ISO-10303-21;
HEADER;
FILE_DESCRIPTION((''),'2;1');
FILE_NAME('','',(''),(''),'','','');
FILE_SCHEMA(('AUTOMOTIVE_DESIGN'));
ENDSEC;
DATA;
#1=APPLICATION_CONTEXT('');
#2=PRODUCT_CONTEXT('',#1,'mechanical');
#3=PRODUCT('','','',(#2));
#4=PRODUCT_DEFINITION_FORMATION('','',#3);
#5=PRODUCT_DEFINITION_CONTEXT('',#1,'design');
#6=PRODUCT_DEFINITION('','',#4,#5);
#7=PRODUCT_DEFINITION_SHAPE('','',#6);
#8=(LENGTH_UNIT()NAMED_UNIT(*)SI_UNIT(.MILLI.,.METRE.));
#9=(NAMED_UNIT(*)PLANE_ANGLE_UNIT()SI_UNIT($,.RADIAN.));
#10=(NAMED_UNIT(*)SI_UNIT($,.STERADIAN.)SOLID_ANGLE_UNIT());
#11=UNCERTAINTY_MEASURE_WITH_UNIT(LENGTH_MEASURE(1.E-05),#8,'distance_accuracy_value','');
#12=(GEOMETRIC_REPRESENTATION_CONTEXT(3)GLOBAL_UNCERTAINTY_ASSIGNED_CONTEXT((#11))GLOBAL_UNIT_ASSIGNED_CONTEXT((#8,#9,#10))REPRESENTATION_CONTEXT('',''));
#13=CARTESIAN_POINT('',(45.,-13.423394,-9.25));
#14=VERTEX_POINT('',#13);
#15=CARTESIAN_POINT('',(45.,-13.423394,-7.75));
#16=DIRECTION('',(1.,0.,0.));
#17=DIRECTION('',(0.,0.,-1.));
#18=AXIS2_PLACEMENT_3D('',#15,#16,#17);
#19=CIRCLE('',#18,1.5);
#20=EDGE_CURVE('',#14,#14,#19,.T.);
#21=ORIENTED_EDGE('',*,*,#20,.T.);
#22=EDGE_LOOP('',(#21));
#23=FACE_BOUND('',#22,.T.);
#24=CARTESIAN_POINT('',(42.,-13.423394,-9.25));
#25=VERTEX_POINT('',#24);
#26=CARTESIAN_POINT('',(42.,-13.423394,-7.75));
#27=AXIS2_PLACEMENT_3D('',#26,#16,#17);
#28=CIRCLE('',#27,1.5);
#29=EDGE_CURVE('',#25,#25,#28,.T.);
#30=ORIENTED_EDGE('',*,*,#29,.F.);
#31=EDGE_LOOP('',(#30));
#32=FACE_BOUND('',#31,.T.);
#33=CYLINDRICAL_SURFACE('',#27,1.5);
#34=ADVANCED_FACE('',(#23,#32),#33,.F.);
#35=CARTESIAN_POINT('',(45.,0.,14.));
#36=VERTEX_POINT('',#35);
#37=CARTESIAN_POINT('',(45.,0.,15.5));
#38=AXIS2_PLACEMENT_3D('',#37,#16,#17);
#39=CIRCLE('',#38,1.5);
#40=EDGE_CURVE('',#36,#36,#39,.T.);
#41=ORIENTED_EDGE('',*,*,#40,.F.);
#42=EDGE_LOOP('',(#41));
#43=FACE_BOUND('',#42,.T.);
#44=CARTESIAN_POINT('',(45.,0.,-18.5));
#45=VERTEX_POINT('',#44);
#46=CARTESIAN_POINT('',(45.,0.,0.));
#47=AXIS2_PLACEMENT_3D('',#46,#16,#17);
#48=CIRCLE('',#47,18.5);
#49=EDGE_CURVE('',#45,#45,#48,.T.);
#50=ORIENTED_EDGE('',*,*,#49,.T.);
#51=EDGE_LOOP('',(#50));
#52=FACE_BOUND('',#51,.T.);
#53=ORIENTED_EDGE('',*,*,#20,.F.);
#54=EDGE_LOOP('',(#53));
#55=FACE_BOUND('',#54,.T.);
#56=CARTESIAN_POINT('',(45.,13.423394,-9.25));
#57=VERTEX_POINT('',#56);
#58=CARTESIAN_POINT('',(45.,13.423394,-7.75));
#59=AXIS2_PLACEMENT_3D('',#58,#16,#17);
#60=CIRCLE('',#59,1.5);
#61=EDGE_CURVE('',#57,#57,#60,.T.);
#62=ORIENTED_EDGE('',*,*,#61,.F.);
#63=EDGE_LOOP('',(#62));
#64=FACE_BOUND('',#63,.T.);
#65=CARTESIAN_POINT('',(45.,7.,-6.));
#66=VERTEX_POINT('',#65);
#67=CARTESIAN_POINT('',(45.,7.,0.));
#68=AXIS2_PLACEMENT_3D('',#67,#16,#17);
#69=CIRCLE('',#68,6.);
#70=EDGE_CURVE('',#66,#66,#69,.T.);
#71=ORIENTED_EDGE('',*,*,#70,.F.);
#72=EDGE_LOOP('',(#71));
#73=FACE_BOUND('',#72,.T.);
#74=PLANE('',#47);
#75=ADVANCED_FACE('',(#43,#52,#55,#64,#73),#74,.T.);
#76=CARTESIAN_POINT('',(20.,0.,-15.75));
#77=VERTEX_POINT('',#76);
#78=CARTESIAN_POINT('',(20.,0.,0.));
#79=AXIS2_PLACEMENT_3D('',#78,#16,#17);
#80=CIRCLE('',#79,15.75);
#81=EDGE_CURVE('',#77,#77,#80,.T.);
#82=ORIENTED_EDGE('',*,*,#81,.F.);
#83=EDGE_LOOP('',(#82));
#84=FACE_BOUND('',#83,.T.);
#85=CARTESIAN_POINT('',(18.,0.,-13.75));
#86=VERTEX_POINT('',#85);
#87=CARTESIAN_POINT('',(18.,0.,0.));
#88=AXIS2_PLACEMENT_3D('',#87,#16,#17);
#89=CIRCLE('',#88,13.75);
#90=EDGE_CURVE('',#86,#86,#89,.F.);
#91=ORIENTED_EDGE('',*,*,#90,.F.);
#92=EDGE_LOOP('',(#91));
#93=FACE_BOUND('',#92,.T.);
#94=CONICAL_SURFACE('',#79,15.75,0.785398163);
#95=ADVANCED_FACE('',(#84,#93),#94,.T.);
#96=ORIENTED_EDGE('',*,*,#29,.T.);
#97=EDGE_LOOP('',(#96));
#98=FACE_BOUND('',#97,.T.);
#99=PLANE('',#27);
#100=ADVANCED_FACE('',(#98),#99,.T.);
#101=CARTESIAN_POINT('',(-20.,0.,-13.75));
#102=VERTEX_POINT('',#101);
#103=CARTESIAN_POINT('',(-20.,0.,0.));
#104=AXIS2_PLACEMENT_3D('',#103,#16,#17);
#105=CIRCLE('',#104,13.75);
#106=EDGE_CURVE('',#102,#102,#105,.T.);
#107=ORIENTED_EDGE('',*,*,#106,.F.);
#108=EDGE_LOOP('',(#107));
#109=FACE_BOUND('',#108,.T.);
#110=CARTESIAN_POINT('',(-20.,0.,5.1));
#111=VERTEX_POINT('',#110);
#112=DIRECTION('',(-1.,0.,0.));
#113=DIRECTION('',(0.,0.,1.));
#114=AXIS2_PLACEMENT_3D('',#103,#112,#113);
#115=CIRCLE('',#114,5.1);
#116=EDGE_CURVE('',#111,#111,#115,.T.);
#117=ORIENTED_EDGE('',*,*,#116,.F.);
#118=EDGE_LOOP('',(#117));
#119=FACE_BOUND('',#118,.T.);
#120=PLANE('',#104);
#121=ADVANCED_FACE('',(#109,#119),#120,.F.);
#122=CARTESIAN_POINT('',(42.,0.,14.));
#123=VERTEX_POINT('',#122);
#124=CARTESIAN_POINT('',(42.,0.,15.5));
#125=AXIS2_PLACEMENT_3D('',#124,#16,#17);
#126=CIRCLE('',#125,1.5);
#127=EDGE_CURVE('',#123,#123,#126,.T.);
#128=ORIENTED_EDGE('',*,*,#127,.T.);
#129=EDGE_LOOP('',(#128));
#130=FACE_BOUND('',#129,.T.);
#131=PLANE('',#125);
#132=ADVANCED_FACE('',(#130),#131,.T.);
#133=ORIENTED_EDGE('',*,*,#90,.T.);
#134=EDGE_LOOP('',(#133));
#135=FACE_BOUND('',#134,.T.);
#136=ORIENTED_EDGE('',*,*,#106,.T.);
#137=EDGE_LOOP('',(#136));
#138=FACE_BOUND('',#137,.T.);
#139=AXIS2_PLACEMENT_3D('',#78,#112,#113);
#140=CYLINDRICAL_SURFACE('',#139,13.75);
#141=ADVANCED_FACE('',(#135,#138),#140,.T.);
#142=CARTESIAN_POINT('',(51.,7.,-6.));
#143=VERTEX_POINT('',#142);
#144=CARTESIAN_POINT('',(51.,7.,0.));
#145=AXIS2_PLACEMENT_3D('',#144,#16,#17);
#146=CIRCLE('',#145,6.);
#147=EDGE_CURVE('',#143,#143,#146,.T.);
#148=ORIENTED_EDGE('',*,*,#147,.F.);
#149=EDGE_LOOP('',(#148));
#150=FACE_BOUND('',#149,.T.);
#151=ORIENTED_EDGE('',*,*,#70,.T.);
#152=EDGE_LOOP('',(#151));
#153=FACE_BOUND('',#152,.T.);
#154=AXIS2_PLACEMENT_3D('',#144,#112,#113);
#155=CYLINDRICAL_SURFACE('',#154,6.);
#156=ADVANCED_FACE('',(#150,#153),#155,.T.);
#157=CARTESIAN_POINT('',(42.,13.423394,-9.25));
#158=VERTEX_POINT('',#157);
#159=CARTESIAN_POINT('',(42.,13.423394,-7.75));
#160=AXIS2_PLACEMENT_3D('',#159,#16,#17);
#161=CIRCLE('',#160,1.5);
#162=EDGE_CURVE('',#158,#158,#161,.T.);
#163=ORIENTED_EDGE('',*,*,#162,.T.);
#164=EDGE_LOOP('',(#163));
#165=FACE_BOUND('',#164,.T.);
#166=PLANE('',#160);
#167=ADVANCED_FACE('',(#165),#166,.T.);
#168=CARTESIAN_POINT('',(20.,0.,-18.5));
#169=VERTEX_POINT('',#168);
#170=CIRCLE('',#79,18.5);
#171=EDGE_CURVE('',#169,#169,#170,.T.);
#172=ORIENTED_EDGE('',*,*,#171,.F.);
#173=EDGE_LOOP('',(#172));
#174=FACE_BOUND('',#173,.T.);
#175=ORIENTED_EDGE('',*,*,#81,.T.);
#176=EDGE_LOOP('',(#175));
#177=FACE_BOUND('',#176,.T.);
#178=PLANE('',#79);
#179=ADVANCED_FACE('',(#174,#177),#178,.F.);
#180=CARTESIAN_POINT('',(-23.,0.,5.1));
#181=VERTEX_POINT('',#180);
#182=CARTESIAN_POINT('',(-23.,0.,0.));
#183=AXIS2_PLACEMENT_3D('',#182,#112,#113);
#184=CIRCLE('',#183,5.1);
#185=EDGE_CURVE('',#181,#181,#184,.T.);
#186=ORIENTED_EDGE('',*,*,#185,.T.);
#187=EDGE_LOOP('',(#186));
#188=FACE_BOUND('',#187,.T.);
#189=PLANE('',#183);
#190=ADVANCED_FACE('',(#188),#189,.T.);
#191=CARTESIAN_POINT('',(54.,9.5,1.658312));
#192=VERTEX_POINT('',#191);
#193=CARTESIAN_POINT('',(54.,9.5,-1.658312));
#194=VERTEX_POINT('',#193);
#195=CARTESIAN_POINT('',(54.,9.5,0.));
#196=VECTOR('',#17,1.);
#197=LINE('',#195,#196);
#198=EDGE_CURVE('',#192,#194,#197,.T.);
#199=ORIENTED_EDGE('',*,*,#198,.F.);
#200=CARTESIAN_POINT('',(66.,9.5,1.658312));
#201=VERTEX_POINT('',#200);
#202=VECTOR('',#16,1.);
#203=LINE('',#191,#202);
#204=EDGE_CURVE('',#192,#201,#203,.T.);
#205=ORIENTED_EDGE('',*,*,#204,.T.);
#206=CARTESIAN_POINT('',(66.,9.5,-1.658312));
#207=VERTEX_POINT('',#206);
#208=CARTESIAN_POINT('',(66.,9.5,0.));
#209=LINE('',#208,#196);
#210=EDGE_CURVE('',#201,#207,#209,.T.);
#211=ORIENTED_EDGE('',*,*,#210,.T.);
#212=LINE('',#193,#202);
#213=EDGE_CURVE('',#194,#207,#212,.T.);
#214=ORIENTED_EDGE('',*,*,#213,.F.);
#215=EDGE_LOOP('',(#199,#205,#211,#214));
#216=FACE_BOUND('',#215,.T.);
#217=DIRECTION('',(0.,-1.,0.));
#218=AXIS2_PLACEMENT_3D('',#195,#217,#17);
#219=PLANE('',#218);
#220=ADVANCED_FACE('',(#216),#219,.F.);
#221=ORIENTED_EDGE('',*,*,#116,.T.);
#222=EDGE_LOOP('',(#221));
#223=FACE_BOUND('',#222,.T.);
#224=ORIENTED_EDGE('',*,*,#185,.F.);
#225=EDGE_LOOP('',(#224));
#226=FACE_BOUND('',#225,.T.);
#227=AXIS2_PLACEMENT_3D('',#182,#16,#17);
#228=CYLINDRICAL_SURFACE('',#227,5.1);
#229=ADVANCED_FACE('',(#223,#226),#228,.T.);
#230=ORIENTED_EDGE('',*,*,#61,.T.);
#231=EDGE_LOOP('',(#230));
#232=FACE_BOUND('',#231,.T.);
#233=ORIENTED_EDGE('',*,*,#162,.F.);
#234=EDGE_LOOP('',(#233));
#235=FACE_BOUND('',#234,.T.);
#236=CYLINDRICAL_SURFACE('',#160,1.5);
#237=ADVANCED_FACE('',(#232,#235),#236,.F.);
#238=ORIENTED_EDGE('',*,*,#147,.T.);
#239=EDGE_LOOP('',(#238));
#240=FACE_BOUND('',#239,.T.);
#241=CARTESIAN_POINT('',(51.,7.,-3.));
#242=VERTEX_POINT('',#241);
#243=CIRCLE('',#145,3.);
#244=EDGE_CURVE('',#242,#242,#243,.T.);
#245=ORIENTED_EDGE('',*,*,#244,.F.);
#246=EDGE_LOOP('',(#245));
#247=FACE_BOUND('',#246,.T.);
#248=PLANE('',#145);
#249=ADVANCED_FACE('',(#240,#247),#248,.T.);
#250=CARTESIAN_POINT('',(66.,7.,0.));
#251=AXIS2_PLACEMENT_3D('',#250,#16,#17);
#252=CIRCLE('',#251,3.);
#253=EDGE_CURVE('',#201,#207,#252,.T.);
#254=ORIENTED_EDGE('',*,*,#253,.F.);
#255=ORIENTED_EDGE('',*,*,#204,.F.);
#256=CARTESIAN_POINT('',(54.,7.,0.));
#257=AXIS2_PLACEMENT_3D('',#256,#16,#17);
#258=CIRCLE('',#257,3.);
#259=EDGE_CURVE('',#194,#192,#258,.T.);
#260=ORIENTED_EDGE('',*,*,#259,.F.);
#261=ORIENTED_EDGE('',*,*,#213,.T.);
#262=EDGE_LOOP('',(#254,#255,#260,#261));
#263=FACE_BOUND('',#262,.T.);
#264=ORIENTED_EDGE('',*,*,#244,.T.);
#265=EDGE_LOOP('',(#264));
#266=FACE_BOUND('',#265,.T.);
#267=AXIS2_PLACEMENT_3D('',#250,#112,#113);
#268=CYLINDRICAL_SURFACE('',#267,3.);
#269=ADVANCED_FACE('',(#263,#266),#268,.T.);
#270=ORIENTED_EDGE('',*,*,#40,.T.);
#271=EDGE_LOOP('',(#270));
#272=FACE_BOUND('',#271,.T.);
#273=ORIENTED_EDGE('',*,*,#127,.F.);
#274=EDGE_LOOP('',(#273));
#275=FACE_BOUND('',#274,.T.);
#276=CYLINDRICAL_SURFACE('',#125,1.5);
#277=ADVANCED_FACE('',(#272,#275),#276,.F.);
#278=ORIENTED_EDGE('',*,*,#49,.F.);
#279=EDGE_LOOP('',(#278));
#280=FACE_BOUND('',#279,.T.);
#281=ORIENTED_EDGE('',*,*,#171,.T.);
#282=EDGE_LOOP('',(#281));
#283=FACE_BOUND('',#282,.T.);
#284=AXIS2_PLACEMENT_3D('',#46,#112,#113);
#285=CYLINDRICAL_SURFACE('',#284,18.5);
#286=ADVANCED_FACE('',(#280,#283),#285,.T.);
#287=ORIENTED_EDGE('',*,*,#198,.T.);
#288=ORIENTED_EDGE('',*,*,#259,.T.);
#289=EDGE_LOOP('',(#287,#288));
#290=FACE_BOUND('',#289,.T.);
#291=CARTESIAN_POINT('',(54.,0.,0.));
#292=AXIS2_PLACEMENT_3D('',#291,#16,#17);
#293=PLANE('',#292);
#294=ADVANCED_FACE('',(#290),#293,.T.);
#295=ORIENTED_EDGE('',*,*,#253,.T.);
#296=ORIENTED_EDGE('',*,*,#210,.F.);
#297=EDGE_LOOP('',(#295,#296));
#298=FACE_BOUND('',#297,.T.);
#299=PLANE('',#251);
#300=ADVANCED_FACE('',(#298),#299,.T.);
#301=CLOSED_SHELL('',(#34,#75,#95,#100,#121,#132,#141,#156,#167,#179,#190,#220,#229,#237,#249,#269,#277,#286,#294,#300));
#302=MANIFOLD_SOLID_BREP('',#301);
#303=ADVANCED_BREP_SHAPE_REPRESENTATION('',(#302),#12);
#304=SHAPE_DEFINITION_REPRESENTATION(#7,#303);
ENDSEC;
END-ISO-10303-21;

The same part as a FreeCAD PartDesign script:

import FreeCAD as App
import Part
import Sketcher
from FreeCAD import Vector


def edges_at(feature, points):
    """Names of the edges that pass closest to the given points."""
    edges = feature.Shape.Edges
    near = lambda p: min(range(len(edges)), key=lambda i: edges[i].distToShape(Part.Vertex(*p))[0])
    return sorted({f"Edge{near(p) + 1}" for p in points})


def add_polygon(sketch, points):
    """Adds a closed chain of lines whose ends are joined by coincident constraints."""
    first, n = sketch.GeometryCount, len(points)
    for a, b in zip(points, points[1:] + points[:1]):
        sketch.addGeometry(Part.LineSegment(App.Vector(*a, 0), App.Vector(*b, 0)), False)
    for i in range(n):
        sketch.addConstraint(Sketcher.Constraint("Coincident", first + i, 2, first + (i + 1) % n, 1))

doc = App.newDocument("Part")
body = doc.addObject("PartDesign::Body", "Body")

sketch1 = body.newObject("Sketcher::SketchObject", "Sketch")
sketch1.AttachmentSupport = (doc.getObject("YZ_Plane"), [""])
sketch1.MapMode = "FlatFace"
sketch1.addGeometry(Part.Circle(Vector(0, 0, 0), Vector(0, 0, 1), 13.75), False)
sketch1.addConstraint([
    Sketcher.Constraint("Coincident", 0, 3, -1, 1),
    Sketcher.Constraint("Diameter", 0, 27.5),
])
pad1 = body.newObject("PartDesign::Pad", "Pad")
pad1.Profile = sketch1
pad1.Length = 40
pad1.Midplane = True

sketch2 = body.newObject("Sketcher::SketchObject", "Sketch001")
sketch2.AttachmentSupport = (doc.getObject("YZ_Plane"), [""])
sketch2.MapMode = "FlatFace"
sketch2.AttachmentOffset = App.Placement(Vector(0, 0, -20), App.Rotation())
sketch2.addGeometry(Part.Circle(Vector(0, 0, 0), Vector(0, 0, 1), 5.1), False)
sketch2.addConstraint([
    Sketcher.Constraint("Coincident", 0, 3, -1, 1),
    Sketcher.Constraint("Diameter", 0, 10.2),
])
pad2 = body.newObject("PartDesign::Pad", "Pad001")
pad2.Profile = sketch2
pad2.Length = 3
pad2.Reversed = True

sketch3 = body.newObject("Sketcher::SketchObject", "Sketch002")
sketch3.AttachmentSupport = (doc.getObject("YZ_Plane"), [""])
sketch3.MapMode = "FlatFace"
sketch3.AttachmentOffset = App.Placement(Vector(0, 0, 20), App.Rotation())
sketch3.addGeometry(Part.Circle(Vector(0, 0, 0), Vector(0, 0, 1), 18.5), False)
sketch3.addConstraint([
    Sketcher.Constraint("Coincident", 0, 3, -1, 1),
    Sketcher.Constraint("Diameter", 0, 37.0),
])
pad3 = body.newObject("PartDesign::Pad", "Pad002")
pad3.Profile = sketch3
pad3.Length = 25

sketch4 = body.newObject("Sketcher::SketchObject", "Sketch003")
sketch4.AttachmentSupport = (doc.getObject("YZ_Plane"), [""])
sketch4.MapMode = "FlatFace"
sketch4.AttachmentOffset = App.Placement(Vector(0, 0, 45), App.Rotation())
sketch4.addGeometry(Part.Circle(Vector(7, 0, 0), Vector(0, 0, 1), 6), False)
sketch4.addConstraint([
    Sketcher.Constraint("PointOnObject", 0, 3, -1),
    Sketcher.Constraint("Diameter", 0, 12.0),
    Sketcher.Constraint("DistanceX", -1, 1, 0, 3, 7.0),
])
pad4 = body.newObject("PartDesign::Pad", "Pad003")
pad4.Profile = sketch4
pad4.Length = 6

sketch5 = body.newObject("Sketcher::SketchObject", "Sketch004")
sketch5.AttachmentSupport = (doc.getObject("YZ_Plane"), [""])
sketch5.MapMode = "FlatFace"
sketch5.AttachmentOffset = App.Placement(Vector(0, 0, 51), App.Rotation())
sketch5.addGeometry(Part.Circle(Vector(7, 0, 0), Vector(0, 0, 1), 3), False)
sketch5.addConstraint([
    Sketcher.Constraint("PointOnObject", 0, 3, -1),
    Sketcher.Constraint("Diameter", 0, 6.0),
    Sketcher.Constraint("DistanceX", -1, 1, 0, 3, 7.0),
])
pad5 = body.newObject("PartDesign::Pad", "Pad004")
pad5.Profile = sketch5
pad5.Length = 15

sketch6 = body.newObject("Sketcher::SketchObject", "Sketch005")
sketch6.AttachmentSupport = (doc.getObject("YZ_Plane"), [""])
sketch6.MapMode = "FlatFace"
sketch6.AttachmentOffset = App.Placement(Vector(0, 0, 66), App.Rotation())
add_polygon(sketch6, [(9.5, 80.66143), (9.5, -80.66143), (167.506235, -80.66143), (167.506235, 80.66143)])
sketch6.addConstraint([
    Sketcher.Constraint("Vertical", 0),
    Sketcher.Constraint("Horizontal", 1),
    Sketcher.Constraint("Vertical", 2),
    Sketcher.Constraint("Horizontal", 3),
    Sketcher.Constraint("DistanceX", -1, 1, 0, 2, 9.5),
    Sketcher.Constraint("DistanceY", 0, 2, 0, 1, 161.32286),
    Sketcher.Constraint("DistanceX", 1, 1, 1, 2, 158.006235),
    Sketcher.Constraint("DistanceY", 0, 2, -1, 1, 80.66143),
])
pocket1 = body.newObject("PartDesign::Pocket", "Pocket")
pocket1.Profile = sketch6
pocket1.Length = 12

sketch7 = body.newObject("Sketcher::SketchObject", "Sketch006")
sketch7.AttachmentSupport = (doc.getObject("YZ_Plane"), [""])
sketch7.MapMode = "FlatFace"
sketch7.AttachmentOffset = App.Placement(Vector(0, 0, 45), App.Rotation())
sketch7.addGeometry([
    Part.Circle(Vector(0, 15.5, 0), Vector(0, 0, 1), 1.5),
    Part.Circle(Vector(13.423394, -7.75, 0), Vector(0, 0, 1), 1.5),
    Part.Circle(Vector(-13.423394, -7.75, 0), Vector(0, 0, 1), 1.5),
], False)
sketch7.addConstraint([
    Sketcher.Constraint("Equal", 0, 1),
    Sketcher.Constraint("Equal", 1, 2),
    Sketcher.Constraint("Symmetric", 1, 3, 2, 3, -2),
    Sketcher.Constraint("PointOnObject", 0, 3, -2),
    Sketcher.Constraint("Diameter", 0, 3.0),
    Sketcher.Constraint("DistanceY", -1, 1, 0, 3, 15.5),
    Sketcher.Constraint("DistanceY", 1, 3, -1, 1, 7.75),
    Sketcher.Constraint("DistanceX", -1, 1, 1, 3, 13.423394),
])
pocket2 = body.newObject("PartDesign::Pocket", "Pocket001")
pocket2.Profile = sketch7
pocket2.Length = 3
doc.recompute()

chamfer = body.newObject("PartDesign::Chamfer", "Chamfer")
chamfer.Base = (pocket2, edges_at(pocket2, [(20, 0, 13.75)]))
chamfer.Size = 2

doc.recompute()
